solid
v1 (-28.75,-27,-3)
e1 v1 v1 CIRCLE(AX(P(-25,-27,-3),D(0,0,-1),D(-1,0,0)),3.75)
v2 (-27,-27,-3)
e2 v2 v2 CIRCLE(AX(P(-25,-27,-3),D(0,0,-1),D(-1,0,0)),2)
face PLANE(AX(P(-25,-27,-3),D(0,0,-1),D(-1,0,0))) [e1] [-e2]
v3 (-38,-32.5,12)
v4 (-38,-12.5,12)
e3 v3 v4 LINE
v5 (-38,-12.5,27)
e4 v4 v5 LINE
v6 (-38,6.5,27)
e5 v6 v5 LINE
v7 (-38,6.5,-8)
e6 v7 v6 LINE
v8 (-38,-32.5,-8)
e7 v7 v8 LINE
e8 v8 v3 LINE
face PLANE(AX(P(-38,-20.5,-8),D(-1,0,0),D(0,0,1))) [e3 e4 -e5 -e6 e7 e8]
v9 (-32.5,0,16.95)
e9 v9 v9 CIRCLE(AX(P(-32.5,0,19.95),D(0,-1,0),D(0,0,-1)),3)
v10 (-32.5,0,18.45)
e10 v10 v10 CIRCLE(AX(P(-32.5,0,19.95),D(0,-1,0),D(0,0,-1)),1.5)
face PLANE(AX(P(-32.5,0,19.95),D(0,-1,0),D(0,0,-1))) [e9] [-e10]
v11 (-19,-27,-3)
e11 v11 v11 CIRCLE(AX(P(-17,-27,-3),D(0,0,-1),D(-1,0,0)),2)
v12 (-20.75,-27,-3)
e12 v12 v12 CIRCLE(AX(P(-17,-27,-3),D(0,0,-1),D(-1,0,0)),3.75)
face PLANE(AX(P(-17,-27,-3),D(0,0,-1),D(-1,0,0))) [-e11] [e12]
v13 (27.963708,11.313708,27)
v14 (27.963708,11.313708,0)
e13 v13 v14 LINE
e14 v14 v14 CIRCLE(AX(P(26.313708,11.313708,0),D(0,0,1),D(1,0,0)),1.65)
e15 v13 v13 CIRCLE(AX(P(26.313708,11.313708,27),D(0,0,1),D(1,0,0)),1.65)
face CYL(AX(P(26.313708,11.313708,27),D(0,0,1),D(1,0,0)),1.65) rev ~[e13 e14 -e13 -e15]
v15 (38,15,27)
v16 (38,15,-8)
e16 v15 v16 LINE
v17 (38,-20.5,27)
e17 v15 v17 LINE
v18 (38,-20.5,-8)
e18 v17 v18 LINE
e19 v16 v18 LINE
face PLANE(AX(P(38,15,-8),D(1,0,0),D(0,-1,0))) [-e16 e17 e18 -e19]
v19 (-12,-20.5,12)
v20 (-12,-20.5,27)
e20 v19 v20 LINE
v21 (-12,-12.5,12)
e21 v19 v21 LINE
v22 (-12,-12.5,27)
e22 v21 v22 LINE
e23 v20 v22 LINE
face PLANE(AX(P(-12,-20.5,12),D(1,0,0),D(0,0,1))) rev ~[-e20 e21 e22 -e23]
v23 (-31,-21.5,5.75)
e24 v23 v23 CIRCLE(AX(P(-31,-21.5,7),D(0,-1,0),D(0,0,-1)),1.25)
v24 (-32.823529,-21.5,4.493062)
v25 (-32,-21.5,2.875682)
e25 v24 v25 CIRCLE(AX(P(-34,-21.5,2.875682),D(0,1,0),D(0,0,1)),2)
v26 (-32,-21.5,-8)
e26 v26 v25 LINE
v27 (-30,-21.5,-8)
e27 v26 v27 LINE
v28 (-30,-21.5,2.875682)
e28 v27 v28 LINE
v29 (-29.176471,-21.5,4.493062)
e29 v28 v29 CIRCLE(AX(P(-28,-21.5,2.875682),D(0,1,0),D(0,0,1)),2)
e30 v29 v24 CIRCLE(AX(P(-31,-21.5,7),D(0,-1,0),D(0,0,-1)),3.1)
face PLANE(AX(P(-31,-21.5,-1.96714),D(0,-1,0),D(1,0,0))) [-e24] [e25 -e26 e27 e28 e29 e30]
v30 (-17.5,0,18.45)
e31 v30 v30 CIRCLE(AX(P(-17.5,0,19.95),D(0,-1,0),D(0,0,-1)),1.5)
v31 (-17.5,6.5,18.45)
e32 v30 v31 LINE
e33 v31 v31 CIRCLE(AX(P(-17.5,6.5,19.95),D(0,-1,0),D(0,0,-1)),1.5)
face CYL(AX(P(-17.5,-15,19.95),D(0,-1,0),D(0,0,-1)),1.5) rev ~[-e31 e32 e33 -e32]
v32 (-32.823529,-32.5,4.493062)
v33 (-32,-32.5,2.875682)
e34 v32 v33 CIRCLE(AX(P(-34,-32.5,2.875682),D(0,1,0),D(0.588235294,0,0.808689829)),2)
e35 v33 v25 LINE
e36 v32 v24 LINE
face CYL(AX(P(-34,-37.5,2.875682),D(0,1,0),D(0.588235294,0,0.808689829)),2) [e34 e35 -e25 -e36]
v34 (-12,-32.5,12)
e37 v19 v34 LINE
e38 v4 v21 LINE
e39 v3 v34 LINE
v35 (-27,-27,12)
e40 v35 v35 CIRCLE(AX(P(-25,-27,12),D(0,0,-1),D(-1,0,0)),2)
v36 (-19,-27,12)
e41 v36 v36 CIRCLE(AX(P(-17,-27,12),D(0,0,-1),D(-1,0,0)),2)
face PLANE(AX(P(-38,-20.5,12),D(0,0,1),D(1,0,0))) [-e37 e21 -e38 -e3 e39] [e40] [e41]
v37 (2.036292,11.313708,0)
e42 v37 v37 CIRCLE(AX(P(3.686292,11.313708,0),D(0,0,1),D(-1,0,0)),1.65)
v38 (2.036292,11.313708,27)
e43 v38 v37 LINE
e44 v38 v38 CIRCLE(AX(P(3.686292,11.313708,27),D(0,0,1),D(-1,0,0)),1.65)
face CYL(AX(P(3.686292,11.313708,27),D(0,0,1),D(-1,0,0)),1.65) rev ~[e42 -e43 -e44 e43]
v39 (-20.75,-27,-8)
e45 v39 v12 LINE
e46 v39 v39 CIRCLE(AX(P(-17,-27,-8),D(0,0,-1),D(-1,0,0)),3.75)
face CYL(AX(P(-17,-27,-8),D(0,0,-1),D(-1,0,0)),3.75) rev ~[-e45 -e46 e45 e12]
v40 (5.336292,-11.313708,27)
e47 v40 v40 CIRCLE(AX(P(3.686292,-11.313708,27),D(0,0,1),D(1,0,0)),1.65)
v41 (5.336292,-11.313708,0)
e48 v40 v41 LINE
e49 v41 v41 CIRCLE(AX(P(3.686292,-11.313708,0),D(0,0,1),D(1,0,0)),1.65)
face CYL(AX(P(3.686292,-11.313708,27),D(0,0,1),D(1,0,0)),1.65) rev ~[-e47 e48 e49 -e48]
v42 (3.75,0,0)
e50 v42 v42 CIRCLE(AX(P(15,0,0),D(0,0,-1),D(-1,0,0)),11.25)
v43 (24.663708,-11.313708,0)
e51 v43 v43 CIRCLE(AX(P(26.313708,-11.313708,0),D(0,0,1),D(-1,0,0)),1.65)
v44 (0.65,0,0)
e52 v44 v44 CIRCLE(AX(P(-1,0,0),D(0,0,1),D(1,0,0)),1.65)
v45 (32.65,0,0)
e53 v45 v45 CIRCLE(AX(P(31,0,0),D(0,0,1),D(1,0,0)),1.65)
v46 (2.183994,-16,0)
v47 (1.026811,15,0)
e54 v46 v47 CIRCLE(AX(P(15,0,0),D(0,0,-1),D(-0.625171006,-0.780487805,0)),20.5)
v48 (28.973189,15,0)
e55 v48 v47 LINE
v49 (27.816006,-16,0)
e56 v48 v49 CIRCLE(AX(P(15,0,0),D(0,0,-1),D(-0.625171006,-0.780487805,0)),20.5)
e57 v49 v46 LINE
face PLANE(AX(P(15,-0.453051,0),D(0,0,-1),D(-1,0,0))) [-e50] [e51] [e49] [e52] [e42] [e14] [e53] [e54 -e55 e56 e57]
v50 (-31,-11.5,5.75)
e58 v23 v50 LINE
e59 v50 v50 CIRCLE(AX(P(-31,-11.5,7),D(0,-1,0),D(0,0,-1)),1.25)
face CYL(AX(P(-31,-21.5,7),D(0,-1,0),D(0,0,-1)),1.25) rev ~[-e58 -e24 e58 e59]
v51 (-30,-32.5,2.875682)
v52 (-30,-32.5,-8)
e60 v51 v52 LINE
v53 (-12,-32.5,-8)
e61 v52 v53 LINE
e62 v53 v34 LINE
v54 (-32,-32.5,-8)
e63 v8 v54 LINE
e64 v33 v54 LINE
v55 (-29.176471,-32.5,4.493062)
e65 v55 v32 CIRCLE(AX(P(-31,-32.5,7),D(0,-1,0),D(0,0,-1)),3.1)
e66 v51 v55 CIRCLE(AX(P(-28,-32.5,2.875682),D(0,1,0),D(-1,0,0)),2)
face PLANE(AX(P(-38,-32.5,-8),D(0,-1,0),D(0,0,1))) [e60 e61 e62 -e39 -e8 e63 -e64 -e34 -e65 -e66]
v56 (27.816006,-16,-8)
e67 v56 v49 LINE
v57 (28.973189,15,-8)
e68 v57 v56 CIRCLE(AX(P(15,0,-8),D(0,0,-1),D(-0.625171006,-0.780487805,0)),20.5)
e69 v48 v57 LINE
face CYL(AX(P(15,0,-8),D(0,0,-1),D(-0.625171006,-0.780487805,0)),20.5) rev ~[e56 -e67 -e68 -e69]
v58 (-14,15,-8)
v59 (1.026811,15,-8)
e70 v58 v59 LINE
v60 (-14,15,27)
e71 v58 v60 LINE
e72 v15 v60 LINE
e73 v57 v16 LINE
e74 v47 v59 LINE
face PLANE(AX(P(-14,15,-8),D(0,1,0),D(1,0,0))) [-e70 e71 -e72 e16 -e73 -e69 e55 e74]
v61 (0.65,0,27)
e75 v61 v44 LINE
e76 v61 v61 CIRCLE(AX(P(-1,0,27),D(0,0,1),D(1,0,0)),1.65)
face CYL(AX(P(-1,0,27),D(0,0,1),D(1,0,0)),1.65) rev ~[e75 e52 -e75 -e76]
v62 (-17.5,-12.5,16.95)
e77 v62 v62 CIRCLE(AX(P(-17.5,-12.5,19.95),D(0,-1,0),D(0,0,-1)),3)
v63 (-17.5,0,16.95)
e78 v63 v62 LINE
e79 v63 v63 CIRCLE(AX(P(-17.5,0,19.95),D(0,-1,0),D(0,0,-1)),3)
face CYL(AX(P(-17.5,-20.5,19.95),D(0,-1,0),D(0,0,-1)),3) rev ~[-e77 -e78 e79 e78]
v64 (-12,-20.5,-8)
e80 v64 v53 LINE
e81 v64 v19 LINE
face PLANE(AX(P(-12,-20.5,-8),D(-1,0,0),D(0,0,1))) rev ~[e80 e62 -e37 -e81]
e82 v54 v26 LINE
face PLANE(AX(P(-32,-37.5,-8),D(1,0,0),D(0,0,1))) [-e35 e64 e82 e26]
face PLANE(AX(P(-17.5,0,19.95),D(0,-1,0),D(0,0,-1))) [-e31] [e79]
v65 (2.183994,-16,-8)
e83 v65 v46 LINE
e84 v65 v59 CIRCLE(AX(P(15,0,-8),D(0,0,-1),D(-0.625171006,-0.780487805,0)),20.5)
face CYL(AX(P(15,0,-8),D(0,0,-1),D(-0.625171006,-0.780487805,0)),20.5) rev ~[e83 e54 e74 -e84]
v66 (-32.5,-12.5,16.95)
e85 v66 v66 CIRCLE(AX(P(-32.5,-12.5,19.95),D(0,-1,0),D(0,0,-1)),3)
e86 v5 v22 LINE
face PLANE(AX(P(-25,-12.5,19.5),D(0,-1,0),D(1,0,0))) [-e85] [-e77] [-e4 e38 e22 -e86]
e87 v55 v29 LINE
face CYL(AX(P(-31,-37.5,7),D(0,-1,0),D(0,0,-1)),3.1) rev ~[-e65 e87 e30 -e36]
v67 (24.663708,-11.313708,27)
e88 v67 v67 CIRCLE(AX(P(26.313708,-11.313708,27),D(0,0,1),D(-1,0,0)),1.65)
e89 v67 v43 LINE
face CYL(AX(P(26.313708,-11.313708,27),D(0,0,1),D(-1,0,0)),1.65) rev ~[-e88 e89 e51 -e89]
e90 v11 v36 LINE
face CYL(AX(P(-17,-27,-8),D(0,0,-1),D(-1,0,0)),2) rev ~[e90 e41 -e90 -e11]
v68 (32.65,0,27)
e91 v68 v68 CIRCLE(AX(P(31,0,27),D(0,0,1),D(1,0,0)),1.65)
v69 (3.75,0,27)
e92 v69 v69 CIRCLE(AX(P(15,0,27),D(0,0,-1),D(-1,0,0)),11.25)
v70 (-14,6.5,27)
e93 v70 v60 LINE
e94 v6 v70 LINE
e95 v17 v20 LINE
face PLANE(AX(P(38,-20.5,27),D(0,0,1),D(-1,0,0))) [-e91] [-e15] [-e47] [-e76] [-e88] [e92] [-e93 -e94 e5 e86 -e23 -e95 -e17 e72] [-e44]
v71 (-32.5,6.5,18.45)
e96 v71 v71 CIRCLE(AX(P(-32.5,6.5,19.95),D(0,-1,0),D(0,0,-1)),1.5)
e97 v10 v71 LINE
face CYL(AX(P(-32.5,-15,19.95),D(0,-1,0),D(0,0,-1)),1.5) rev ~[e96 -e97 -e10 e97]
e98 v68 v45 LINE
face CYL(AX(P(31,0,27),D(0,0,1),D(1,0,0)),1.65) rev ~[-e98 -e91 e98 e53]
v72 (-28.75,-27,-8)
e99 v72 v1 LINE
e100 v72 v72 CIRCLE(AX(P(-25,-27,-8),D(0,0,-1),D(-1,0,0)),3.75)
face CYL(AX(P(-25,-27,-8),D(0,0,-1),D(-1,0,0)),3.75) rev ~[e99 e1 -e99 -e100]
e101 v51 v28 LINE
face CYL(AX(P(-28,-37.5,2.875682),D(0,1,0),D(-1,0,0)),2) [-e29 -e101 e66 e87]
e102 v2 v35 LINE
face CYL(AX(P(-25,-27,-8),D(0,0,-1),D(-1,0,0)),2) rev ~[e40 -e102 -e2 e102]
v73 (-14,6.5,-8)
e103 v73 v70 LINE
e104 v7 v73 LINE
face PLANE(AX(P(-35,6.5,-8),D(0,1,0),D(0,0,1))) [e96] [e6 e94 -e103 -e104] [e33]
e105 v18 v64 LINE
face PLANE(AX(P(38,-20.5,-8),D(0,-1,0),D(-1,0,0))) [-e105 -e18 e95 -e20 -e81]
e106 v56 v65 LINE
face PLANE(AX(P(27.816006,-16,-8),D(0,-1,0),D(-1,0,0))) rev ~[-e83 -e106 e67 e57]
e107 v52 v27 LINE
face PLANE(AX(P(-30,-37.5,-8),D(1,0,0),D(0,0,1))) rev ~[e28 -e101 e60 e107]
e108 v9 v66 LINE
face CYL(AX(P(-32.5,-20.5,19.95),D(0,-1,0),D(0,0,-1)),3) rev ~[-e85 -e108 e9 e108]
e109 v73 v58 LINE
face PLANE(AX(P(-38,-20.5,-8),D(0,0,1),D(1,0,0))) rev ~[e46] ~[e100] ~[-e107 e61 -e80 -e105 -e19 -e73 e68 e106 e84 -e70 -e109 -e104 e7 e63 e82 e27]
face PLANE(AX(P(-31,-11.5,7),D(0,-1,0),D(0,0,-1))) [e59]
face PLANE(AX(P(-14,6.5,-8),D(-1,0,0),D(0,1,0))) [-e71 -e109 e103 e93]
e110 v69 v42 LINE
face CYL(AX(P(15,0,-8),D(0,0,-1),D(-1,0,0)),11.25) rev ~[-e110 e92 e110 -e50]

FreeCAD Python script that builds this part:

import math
import FreeCAD as App
import Part
import Sketcher

V = App.Vector
Q = App.Units.Quantity


def edges_at(feature, points):
    """Names of the edges that pass closest to the given points."""
    edges = feature.Shape.Edges
    near = lambda p: min(range(len(edges)), key=lambda i: edges[i].distToShape(Part.Vertex(*p))[0])
    return sorted({f"Edge{near(p) + 1}" for p in points})

doc = App.newDocument("Part")
body = doc.addObject("PartDesign::Body", "Body")

# Sketch on XY plane
sketch1 = doc.addObject("Sketcher::SketchObject", "Sketch")
body.addObject(sketch1)
sketch1.AttachmentSupport = (doc.XY_Plane, [""])
sketch1.MapMode = "FlatFace"
sketch1.addGeometry([
    Part.LineSegment(V(-35, 15, 0), V(-35, -15, 0)),
    Part.LineSegment(V(-35, -15, 0), V(35, -15, 0)),
    Part.LineSegment(V(35, -15, 0), V(35, 15, 0)),
    Part.LineSegment(V(35, 15, 0), V(-35, 15, 0)),
], False)
sketch1.addConstraint([
    Sketcher.Constraint("Coincident", 0, 2, 1, 1),
    Sketcher.Constraint("Coincident", 1, 2, 2, 1),
    Sketcher.Constraint("Coincident", 2, 2, 3, 1),
    Sketcher.Constraint("Coincident", 3, 2, 0, 1),
    Sketcher.Constraint("Vertical", 0),
    Sketcher.Constraint("Horizontal", 1),
    Sketcher.Constraint("Vertical", 2),
    Sketcher.Constraint("Horizontal", 3),
    Sketcher.Constraint("Symmetric", 0, 2, 2, 2, -1, 1),
    Sketcher.Constraint("DistanceX", 1, 1, 1, 2, Q("70 mm")),
    Sketcher.Constraint("DistanceY", 0, 2, 0, 1, Q("30 mm")),
])
pad1 = doc.addObject("PartDesign::Pad", "Pad")
body.addObject(pad1)
pad1.Profile = sketch1
pad1.Length = 27

# Sketch on XY plane
sketch2 = doc.addObject("Sketcher::SketchObject", "Sketch001")
body.addObject(sketch2)
sketch2.AttachmentSupport = (doc.XY_Plane, [""])
sketch2.MapMode = "FlatFace"
sketch2.AttachmentOffset = App.Placement(V(0, 0, 27), App.Rotation())
sketch2.addGeometry([
    Part.LineSegment(V(28, -15, 0), V(35, -15, 0)),  # 0
    Part.LineSegment(V(35, -15, 0), V(35, 0, 0)),  # 1
    Part.ArcOfCircle(Part.Circle(V(15, 0, 0), V(0, 0, 1), 20), math.radians(-49), math.radians(0)),  # 2
    Part.ArcOfCircle(Part.Circle(V(15, 0, 0), V(0, 0, 1), 20), math.radians(0), math.radians(49)),  # 3
    Part.LineSegment(V(35, 0, 0), V(35, 15, 0)),  # 4
    Part.LineSegment(V(35, 15, 0), V(28, 15, 0)),  # 5
], False)
sketch2.addConstraint([
    Sketcher.Constraint("Coincident", 0, 2, 1, 1),
    Sketcher.Constraint("Tangent", 1, 2, 2, 2),
    Sketcher.Constraint("Coincident", 2, 1, 0, 1),
    Sketcher.Constraint("Tangent", 3, 1, 4, 1),
    Sketcher.Constraint("Coincident", 4, 2, 5, 1),
    Sketcher.Constraint("Coincident", 5, 2, 3, 2),
    Sketcher.Constraint("Horizontal", 0),
    Sketcher.Constraint("Vertical", 1),
    Sketcher.Constraint("Vertical", 4),
    Sketcher.Constraint("Horizontal", 5),
    Sketcher.Constraint("Coincident", 3, 3, 2, 3),
    Sketcher.Constraint("Equal", 2, 3),
    Sketcher.Constraint("Symmetric", 2, 1, 5, 2, -1),
    Sketcher.Constraint("Radius", 2, Q("20 mm")),
    Sketcher.Constraint("DistanceY", 1, 1, 1, 2, Q("15 mm")),
    Sketcher.Constraint("DistanceX", -1, 1, 2, 3, Q("15 mm")),
])
pocket1 = doc.addObject("PartDesign::Pocket", "Pocket")
body.addObject(pocket1)
pocket1.Profile = sketch2
pocket1.Type = "ThroughAll"

# Sketch on XY plane
sketch3 = doc.addObject("Sketcher::SketchObject", "Sketch002")
body.addObject(sketch3)
sketch3.AttachmentSupport = (doc.XY_Plane, [""])
sketch3.MapMode = "FlatFace"
sketch3.AttachmentOffset = App.Placement(V(0, 0, 27), App.Rotation())
sketch3.addGeometry([
    Part.Circle(V(31, 0, 0), V(0, 0, 1), 1.6),  # 0
    Part.Circle(V(26.3, 11.3, 0), V(0, 0, 1), 1.6),  # 1
    Part.Circle(V(26.3, -11.3, 0), V(0, 0, 1), 1.6),  # 2
    Part.Circle(V(3.7, 11.3, 0), V(0, 0, 1), 1.6),  # 3
    Part.Circle(V(3.7, -11.3, 0), V(0, 0, 1), 1.6),  # 4
    Part.Circle(V(-1, 0, 0), V(0, 0, 1), 1.6),  # 5
], False)
sketch3.addConstraint([
    Sketcher.Constraint("Equal", 0, 1),
    Sketcher.Constraint("Equal", 1, 2),
    Sketcher.Constraint("Equal", 2, 3),
    Sketcher.Constraint("Equal", 3, 4),
    Sketcher.Constraint("Equal", 4, 5),
    Sketcher.Constraint("Symmetric", 1, 3, 2, 3, -1),
    Sketcher.Constraint("Symmetric", 3, 3, 4, 3, -1),
    Sketcher.Constraint("PointOnObject", 0, 3, -1),
    Sketcher.Constraint("PointOnObject", 5, 3, -1),
    Sketcher.Constraint("Horizontal", 1, 3, 3, 3),
    Sketcher.Constraint("Diameter", 0, Q("3.3 mm")),
    Sketcher.Constraint("DistanceX", -1, 1, 0, 3, Q("31 mm")),
    Sketcher.Constraint("DistanceX", 5, 3, -1, 1, Q("1 mm")),
    Sketcher.Constraint("DistanceX", -1, 1, 1, 3, Q("26.313708 mm")),
    Sketcher.Constraint("DistanceY", -1, 1, 1, 3, Q("11.313708 mm")),
    Sketcher.Constraint("DistanceX", -1, 1, 3, 3, Q("3.686292 mm")),
])
pocket2 = doc.addObject("PartDesign::Pocket", "Pocket001")
body.addObject(pocket2)
pocket2.Profile = sketch3
pocket2.Type = "ThroughAll"

# Sketch on XY plane
sketch4 = doc.addObject("Sketcher::SketchObject", "Sketch003")
body.addObject(sketch4)
sketch4.AttachmentSupport = (doc.XY_Plane, [""])
sketch4.MapMode = "FlatFace"
sketch4.AttachmentOffset = App.Placement(V(0, 0, 27), App.Rotation())
sketch4.addGeometry([
    Part.LineSegment(V(-35, 15, 0), V(-35, 6, 0)),
    Part.LineSegment(V(-35, 6, 0), V(-14, 6, 0)),
    Part.LineSegment(V(-14, 6, 0), V(-14, 15, 0)),
    Part.LineSegment(V(-14, 15, 0), V(-35, 15, 0)),
], False)
sketch4.addConstraint([
    Sketcher.Constraint("Coincident", 0, 2, 1, 1),
    Sketcher.Constraint("Coincident", 1, 2, 2, 1),
    Sketcher.Constraint("Coincident", 2, 2, 3, 1),
    Sketcher.Constraint("Coincident", 3, 2, 0, 1),
    Sketcher.Constraint("Vertical", 0),
    Sketcher.Constraint("Horizontal", 1),
    Sketcher.Constraint("Vertical", 2),
    Sketcher.Constraint("Horizontal", 3),
    Sketcher.Constraint("DistanceX", 1, 1, 1, 2, Q("21 mm")),
    Sketcher.Constraint("DistanceY", 0, 2, 0, 1, Q("8.5 mm")),
    Sketcher.Constraint("DistanceX", 0, 2, -1, 1, Q("35 mm")),
    Sketcher.Constraint("DistanceY", -1, 1, 2, 2, Q("15 mm")),
])
pocket3 = doc.addObject("PartDesign::Pocket", "Pocket002")
body.addObject(pocket3)
pocket3.Profile = sketch4
pocket3.Type = "ThroughAll"

# Sketch on XY plane
sketch5 = doc.addObject("Sketcher::SketchObject", "Sketch004")
body.addObject(sketch5)
sketch5.AttachmentSupport = (doc.XY_Plane, [""])
sketch5.MapMode = "FlatFace"
sketch5.addGeometry(Part.Circle(V(15, 0, 0), V(0, 0, 1), 11), False)
sketch5.addConstraint([
    Sketcher.Constraint("PointOnObject", 0, 3, -1),
    Sketcher.Constraint("Diameter", 0, Q("22.5 mm")),
    Sketcher.Constraint("DistanceX", -1, 1, 0, 3, Q("15 mm")),
])
pocket4 = doc.addObject("PartDesign::Pocket", "Pocket003")
body.addObject(pocket4)
pocket4.Profile = sketch5
pocket4.Type = "ThroughAll"
pocket4.Reversed = True

# Sketch on XY plane
sketch6 = doc.addObject("Sketcher::SketchObject", "Sketch005")
body.addObject(sketch6)
sketch6.AttachmentSupport = (doc.XY_Plane, [""])
sketch6.MapMode = "FlatFace"
sketch6.addGeometry([
    Part.LineSegment(V(-14, 6, 0), V(-14, -15, 0)),
    Part.LineSegment(V(-14, -15, 0), V(-35, -15, 0)),
    Part.LineSegment(V(-35, -15, 0), V(-35, 6, 0)),
    Part.LineSegment(V(-35, 6, 0), V(-14, 6, 0)),
], False)
sketch6.addConstraint([
    Sketcher.Constraint("Coincident", 0, 2, 1, 1),
    Sketcher.Constraint("Coincident", 1, 2, 2, 1),
    Sketcher.Constraint("Coincident", 2, 2, 3, 1),
    Sketcher.Constraint("Coincident", 3, 2, 0, 1),
    Sketcher.Constraint("Vertical", 0),
    Sketcher.Constraint("Horizontal", 1),
    Sketcher.Constraint("Vertical", 2),
    Sketcher.Constraint("Horizontal", 3),
    Sketcher.Constraint("Equal", 3, 0),
    Sketcher.Constraint("DistanceX", 1, 2, 1, 1, Q("21.5 mm")),
    Sketcher.Constraint("DistanceY", 0, 2, -1, 1, Q("15 mm")),
    Sketcher.Constraint("DistanceX", 1, 2, -1, 1, Q("35 mm")),
])
pad2 = doc.addObject("PartDesign::Pad", "Pad001")
body.addObject(pad2)
pad2.Profile = sketch6
pad2.Length = 8
pad2.Reversed = True

# Sketch on XZ plane
sketch7 = doc.addObject("Sketcher::SketchObject", "Sketch006")
body.addObject(sketch7)
sketch7.AttachmentSupport = (doc.XZ_Plane, [""])
sketch7.MapMode = "FlatFace"
sketch7.AttachmentOffset = App.Placement(V(0, 0, 15), App.Rotation())
sketch7.addGeometry([
    Part.Circle(V(-17.5, 19.9, 0), V(0, 0, 1), 1.5),
    Part.Circle(V(-32.5, 19.9, 0), V(0, 0, 1), 1.5),
], False)
sketch7.addConstraint([
    Sketcher.Constraint("Equal", 0, 1),
    Sketcher.Constraint("Horizontal", 0, 3, 1, 3),
    Sketcher.Constraint("Diameter", 0, Q("3 mm")),
    Sketcher.Constraint("DistanceX", 1, 3, 0, 3, Q("15 mm")),
    Sketcher.Constraint("DistanceX", 0, 3, -1, 1, Q("17.5 mm")),
    Sketcher.Constraint("DistanceY", -1, 1, 0, 3, Q("19.95 mm")),
])
pocket5 = doc.addObject("PartDesign::Pocket", "Pocket004")
body.addObject(pocket5)
pocket5.Profile = sketch7
pocket5.Type = "ThroughAll"

# Sketch on YZ plane
sketch8 = doc.addObject("Sketcher::SketchObject", "Sketch007")
body.addObject(sketch8)
sketch8.AttachmentSupport = (doc.YZ_Plane, [""])
sketch8.MapMode = "FlatFace"
sketch8.AttachmentOffset = App.Placement(V(0, 0, -35), App.Rotation())
sketch8.addGeometry([
    Part.LineSegment(V(6, -8, 0), V(-15, -8, 0)),
    Part.LineSegment(V(-15, -8, 0), V(-15, 27, 0)),
    Part.LineSegment(V(-15, 27, 0), V(6, 27, 0)),
    Part.LineSegment(V(6, 27, 0), V(6, -8, 0)),
], False)
sketch8.addConstraint([
    Sketcher.Constraint("Coincident", 0, 2, 1, 1),
    Sketcher.Constraint("Coincident", 1, 2, 2, 1),
    Sketcher.Constraint("Coincident", 2, 2, 3, 1),
    Sketcher.Constraint("Coincident", 3, 2, 0, 1),
    Sketcher.Constraint("Horizontal", 0),
    Sketcher.Constraint("Vertical", 1),
    Sketcher.Constraint("Horizontal", 2),
    Sketcher.Constraint("Vertical", 3),
    Sketcher.Constraint("DistanceY", 1, 1, 1, 2, Q("35 mm")),
    Sketcher.Constraint("DistanceX", 0, 2, 0, 1, Q("21.5 mm")),
    Sketcher.Constraint("DistanceX", 0, 2, -1, 1, Q("15 mm")),
    Sketcher.Constraint("DistanceY", 0, 2, -1, 1, Q("8 mm")),
])
pad3 = doc.addObject("PartDesign::Pad", "Pad002")
body.addObject(pad3)
pad3.Profile = sketch8
pad3.Length = 3
pad3.Reversed = True

# Sketch on XZ plane
sketch9 = doc.addObject("Sketcher::SketchObject", "Sketch008")
body.addObject(sketch9)
sketch9.AttachmentSupport = (doc.XZ_Plane, [""])
sketch9.MapMode = "FlatFace"
sketch9.AttachmentOffset = App.Placement(V(0, 0, 15), App.Rotation())
sketch9.addGeometry([
    Part.Circle(V(-32.5, 19.9, 0), V(0, 0, 1), 3),
    Part.Circle(V(-17.5, 19.9, 0), V(0, 0, 1), 3),
], False)
sketch9.addConstraint([
    Sketcher.Constraint("Equal", 0, 1),
    Sketcher.Constraint("Horizontal", 0, 3, 1, 3),
    Sketcher.Constraint("Diameter", 0, Q("6 mm")),
    Sketcher.Constraint("DistanceX", 0, 3, 1, 3, Q("15 mm")),
    Sketcher.Constraint("DistanceX", 0, 3, -1, 1, Q("32.5 mm")),
    Sketcher.Constraint("DistanceY", -1, 1, 0, 3, Q("19.95 mm")),
])
pocket6 = doc.addObject("PartDesign::Pocket", "Pocket005")
body.addObject(pocket6)
pocket6.Profile = sketch9
pocket6.Length = 15

# Sketch on XY plane
sketch10 = doc.addObject("Sketcher::SketchObject", "Sketch009")
body.addObject(sketch10)
sketch10.AttachmentSupport = (doc.XY_Plane, [""])
sketch10.MapMode = "FlatFace"
sketch10.AttachmentOffset = App.Placement(V(0, 0, 27), App.Rotation())
sketch10.addGeometry([
    Part.LineSegment(V(28.2, -15, 0), V(35, -15, 0)),  # 0
    Part.LineSegment(V(35, -15, 0), V(35, 15, 0)),  # 1
    Part.LineSegment(V(35, 15, 0), V(28.2, 15, 0)),  # 2
    Part.LineSegment(V(28.2, 15, 0), V(28.2, -15, 0)),  # 3
    Part.Circle(V(31, 0, 0), V(0, 0, 1), 1.6),  # 4
], False)
sketch10.addConstraint([
    Sketcher.Constraint("Coincident", 0, 2, 1, 1),
    Sketcher.Constraint("Coincident", 1, 2, 2, 1),
    Sketcher.Constraint("Coincident", 2, 2, 3, 1),
    Sketcher.Constraint("Coincident", 3, 2, 0, 1),
    Sketcher.Constraint("Horizontal", 0),
    Sketcher.Constraint("Vertical", 1),
    Sketcher.Constraint("Horizontal", 2),
    Sketcher.Constraint("Vertical", 3),
    Sketcher.Constraint("PointOnObject", 4, 3, -1),
    Sketcher.Constraint("Diameter", 4, Q("3.3 mm")),
    Sketcher.Constraint("DistanceY", 1, 1, 1, 2, Q("30 mm")),
    Sketcher.Constraint("DistanceX", -1, 1, 4, 3, Q("31 mm")),
    Sketcher.Constraint("DistanceX", -1, 1, 0, 2, Q("35 mm")),
    Sketcher.Constraint("DistanceY", 0, 2, -1, 1, Q("15 mm")),
    Sketcher.Constraint("DistanceX", 0, 1, 0, 2, Q("6.771243 mm")),
])
pad4 = doc.addObject("PartDesign::Pad", "Pad003")
body.addObject(pad4)
pad4.Profile = sketch10
pad4.Length = 27
pad4.Reversed = True

# Sketch on YZ plane
sketch11 = doc.addObject("Sketcher::SketchObject", "Sketch010")
body.addObject(sketch11)
sketch11.AttachmentSupport = (doc.YZ_Plane, [""])
sketch11.MapMode = "FlatFace"
sketch11.AttachmentOffset = App.Placement(V(0, 0, 35), App.Rotation())
sketch11.addGeometry([
    Part.LineSegment(V(15, 27, 0), V(-15, 27, 0)),
    Part.LineSegment(V(-15, 27, 0), V(-15, 0, 0)),
    Part.LineSegment(V(-15, 0, 0), V(15, 0, 0)),
    Part.LineSegment(V(15, 0, 0), V(15, 27, 0)),
], False)
sketch11.addConstraint([
    Sketcher.Constraint("Coincident", 0, 2, 1, 1),
    Sketcher.Constraint("Coincident", 1, 2, 2, 1),
    Sketcher.Constraint("Coincident", 2, 2, 3, 1),
    Sketcher.Constraint("Coincident", 3, 2, 0, 1),
    Sketcher.Constraint("Horizontal", 0),
    Sketcher.Constraint("Vertical", 1),
    Sketcher.Constraint("Horizontal", 2),
    Sketcher.Constraint("Vertical", 3),
    Sketcher.Constraint("Symmetric", 1, 2, 2, 2, -1, 1),
    Sketcher.Constraint("DistanceX", 0, 2, 0, 1, Q("30 mm")),
    Sketcher.Constraint("DistanceY", 1, 2, 1, 1, Q("27 mm")),
])
pad5 = doc.addObject("PartDesign::Pad", "Pad004")
body.addObject(pad5)
pad5.Profile = sketch11
pad5.Length = 3

# Sketch on XZ plane
sketch12 = doc.addObject("Sketcher::SketchObject", "Sketch011")
body.addObject(sketch12)
sketch12.AttachmentSupport = (doc.XZ_Plane, [""])
sketch12.MapMode = "FlatFace"
sketch12.AttachmentOffset = App.Placement(V(0, 0, 20.5), App.Rotation())
sketch12.addGeometry([
    Part.LineSegment(V(-13.5, 0, 0), V(38, 0, 0)),  # 0
    Part.LineSegment(V(38, 0, 0), V(38, 27, 0)),  # 1
    Part.LineSegment(V(38, 27, 0), V(-38, 27, 0)),  # 2
    Part.LineSegment(V(-38, 27, 0), V(-38, -8, 0)),  # 3
    Part.LineSegment(V(-38, -8, 0), V(-13.5, -8, 0)),  # 4
    Part.LineSegment(V(-13.5, -8, 0), V(-13.5, 0, 0)),  # 5
    Part.Circle(V(-32.5, 19.9, 0), V(0, 0, 1), 3),  # 6
    Part.Circle(V(-17.5, 19.9, 0), V(0, 0, 1), 3),  # 7
], False)
sketch12.addConstraint([
    Sketcher.Constraint("Coincident", 0, 2, 1, 1),
    Sketcher.Constraint("Coincident", 1, 2, 2, 1),
    Sketcher.Constraint("Coincident", 2, 2, 3, 1),
    Sketcher.Constraint("Coincident", 3, 2, 4, 1),
    Sketcher.Constraint("Coincident", 4, 2, 5, 1),
    Sketcher.Constraint("Coincident", 5, 2, 0, 1),
    Sketcher.Constraint("Horizontal", 0),
    Sketcher.Constraint("Vertical", 1),
    Sketcher.Constraint("Horizontal", 2),
    Sketcher.Constraint("Vertical", 3),
    Sketcher.Constraint("Horizontal", 4),
    Sketcher.Constraint("Vertical", 5),
    Sketcher.Constraint("Equal", 6, 7),
    Sketcher.Constraint("PointOnObject", 0, 2, -1),
    Sketcher.Constraint("Horizontal", 6, 3, 7, 3),
    Sketcher.Constraint("Diameter", 6, Q("6 mm")),
    Sketcher.Constraint("DistanceX", 2, 2, 2, 1, Q("76 mm")),
    Sketcher.Constraint("DistanceY", 1, 1, 1, 2, Q("27 mm")),
    Sketcher.Constraint("DistanceY", 3, 2, 3, 1, Q("35 mm")),
    Sketcher.Constraint("DistanceX", 0, 1, 0, 2, Q("51.5 mm")),
    Sketcher.Constraint("DistanceX", -1, 1, 0, 2, Q("38 mm")),
    Sketcher.Constraint("DistanceX", 6, 3, 7, 3, Q("15 mm")),
    Sketcher.Constraint("DistanceX", 7, 3, 4, 2, Q("4 mm")),
    Sketcher.Constraint("DistanceY", -1, 1, 6, 3, Q("19.95 mm")),
])
pad6 = doc.addObject("PartDesign::Pad", "Pad005")
body.addObject(pad6)
pad6.Profile = sketch12
pad6.Length = 5.5
pad6.Reversed = True

# Sketch on XZ plane
sketch13 = doc.addObject("Sketcher::SketchObject", "Sketch012")
body.addObject(sketch13)
sketch13.AttachmentSupport = (doc.XZ_Plane, [""])
sketch13.MapMode = "FlatFace"
sketch13.AttachmentOffset = App.Placement(V(0, 0, 20.5), App.Rotation())
sketch13.addGeometry([
    Part.LineSegment(V(-38, 27, 0), V(-38, 12, 0)),
    Part.LineSegment(V(-38, 12, 0), V(-12, 12, 0)),
    Part.LineSegment(V(-12, 12, 0), V(-12, 27, 0)),
    Part.LineSegment(V(-12, 27, 0), V(-38, 27, 0)),
], False)
sketch13.addConstraint([
    Sketcher.Constraint("Coincident", 0, 2, 1, 1),
    Sketcher.Constraint("Coincident", 1, 2, 2, 1),
    Sketcher.Constraint("Coincident", 2, 2, 3, 1),
    Sketcher.Constraint("Coincident", 3, 2, 0, 1),
    Sketcher.Constraint("Vertical", 0),
    Sketcher.Constraint("Horizontal", 1),
    Sketcher.Constraint("Vertical", 2),
    Sketcher.Constraint("Horizontal", 3),
    Sketcher.Constraint("DistanceX", 1, 1, 1, 2, Q("26 mm")),
    Sketcher.Constraint("DistanceY", 0, 2, 0, 1, Q("15 mm")),
    Sketcher.Constraint("DistanceX", 0, 2, -1, 1, Q("38 mm")),
    Sketcher.Constraint("DistanceY", -1, 1, 0, 2, Q("12 mm")),
])
pocket7 = doc.addObject("PartDesign::Pocket", "Pocket006")
body.addObject(pocket7)
pocket7.Profile = sketch13
pocket7.Length = 8

# Sketch on XY plane
sketch14 = doc.addObject("Sketcher::SketchObject", "Sketch013")
body.addObject(sketch14)
sketch14.AttachmentSupport = (doc.XY_Plane, [""])
sketch14.MapMode = "FlatFace"
sketch14.AttachmentOffset = App.Placement(V(0, 0, -8), App.Rotation())
sketch14.addGeometry([
    Part.LineSegment(V(-14, 15, 0), V(38, 15, 0)),  # 0
    Part.LineSegment(V(38, 15, 0), V(38, -20.5, 0)),  # 1
    Part.LineSegment(V(38, -20.5, 0), V(-13.5, -20.5, 0)),  # 2
    Part.LineSegment(V(-13.5, -20.5, 0), V(-13.5, 6.5, 0)),  # 3
    Part.LineSegment(V(-13.5, 6.5, 0), V(-14, 6.5, 0)),  # 4
    Part.LineSegment(V(-14, 6.5, 0), V(-14, 15, 0)),  # 5
    Part.Circle(V(15, 0, 0), V(0, 0, 1), 11.2),  # 6
], False)
sketch14.addConstraint([
    Sketcher.Constraint("Coincident", 0, 2, 1, 1),
    Sketcher.Constraint("Coincident", 1, 2, 2, 1),
    Sketcher.Constraint("Coincident", 2, 2, 3, 1),
    Sketcher.Constraint("Coincident", 3, 2, 4, 1),
    Sketcher.Constraint("Coincident", 4, 2, 5, 1),
    Sketcher.Constraint("Coincident", 5, 2, 0, 1),
    Sketcher.Constraint("Horizontal", 0),
    Sketcher.Constraint("Vertical", 1),
    Sketcher.Constraint("Horizontal", 2),
    Sketcher.Constraint("Vertical", 3),
    Sketcher.Constraint("Horizontal", 4),
    Sketcher.Constraint("Vertical", 5),
    Sketcher.Constraint("PointOnObject", 6, 3, -1),
    Sketcher.Constraint("Diameter", 6, Q("22.5 mm")),
    Sketcher.Constraint("DistanceX", 0, 1, 0, 2, Q("52 mm")),
    Sketcher.Constraint("DistanceY", 3, 1, 3, 2, Q("27 mm")),
    Sketcher.Constraint("DistanceX", 2, 2, 2, 1, Q("51.5 mm")),
    Sketcher.Constraint("DistanceY", 1, 2, 1, 1, Q("35.5 mm")),
    Sketcher.Constraint("DistanceX", -1, 1, 6, 3, Q("15 mm")),
    Sketcher.Constraint("DistanceX", -1, 1, 0, 2, Q("38 mm")),
    Sketcher.Constraint("DistanceY", -1, 1, 0, 2, Q("15 mm")),
])
pad7 = doc.addObject("PartDesign::Pad", "Pad006")
body.addObject(pad7)
pad7.Profile = sketch14
pad7.Length = 8

# Sketch on XY plane
sketch15 = doc.addObject("Sketcher::SketchObject", "Sketch014")
body.addObject(sketch15)
sketch15.AttachmentSupport = (doc.XY_Plane, [""])
sketch15.MapMode = "FlatFace"
sketch15.AttachmentOffset = App.Placement(V(0, 0, -8), App.Rotation())
sketch15.addGeometry([
    Part.LineSegment(V(28, -16, 0), V(2, -16, 0)),
    Part.ArcOfCircle(Part.Circle(V(15, 0, 0), V(0, 0, 1), 20), math.radians(-51), math.radians(231)),
], False)
sketch15.addConstraint([
    Sketcher.Constraint("Coincident", 0, 1, 1, 1),
    Sketcher.Constraint("Coincident", 1, 2, 0, 2),
    Sketcher.Constraint("Horizontal", 0),
    Sketcher.Constraint("PointOnObject", 1, 3, -1),
    Sketcher.Constraint("Radius", 1, Q("20.5 mm")),
    Sketcher.Constraint("DistanceX", -1, 1, 1, 3, Q("15 mm")),
    Sketcher.Constraint("DistanceY", 0, 1, -1, 1, Q("16 mm")),
])
pocket8 = doc.addObject("PartDesign::Pocket", "Pocket007")
body.addObject(pocket8)
pocket8.Profile = sketch15
pocket8.Length = 8
pocket8.Reversed = True

# Sketch on XZ plane
sketch16 = doc.addObject("Sketcher::SketchObject", "Sketch015")
body.addObject(sketch16)
sketch16.AttachmentSupport = (doc.XZ_Plane, [""])
sketch16.MapMode = "FlatFace"
sketch16.AttachmentOffset = App.Placement(V(0, 0, 20.5), App.Rotation())
sketch16.addGeometry([
    Part.LineSegment(V(-38, 12, 0), V(-38, -8, 0)),
    Part.LineSegment(V(-38, -8, 0), V(-12, -8, 0)),
    Part.LineSegment(V(-12, -8, 0), V(-12, 12, 0)),
    Part.LineSegment(V(-12, 12, 0), V(-38, 12, 0)),
], False)
sketch16.addConstraint([
    Sketcher.Constraint("Coincident", 0, 2, 1, 1),
    Sketcher.Constraint("Coincident", 1, 2, 2, 1),
    Sketcher.Constraint("Coincident", 2, 2, 3, 1),
    Sketcher.Constraint("Coincident", 3, 2, 0, 1),
    Sketcher.Constraint("Vertical", 0),
    Sketcher.Constraint("Horizontal", 1),
    Sketcher.Constraint("Vertical", 2),
    Sketcher.Constraint("Horizontal", 3),
    Sketcher.Constraint("DistanceX", 1, 1, 1, 2, Q("26 mm")),
    Sketcher.Constraint("DistanceY", 0, 2, 0, 1, Q("20 mm")),
    Sketcher.Constraint("DistanceX", 0, 2, -1, 1, Q("38 mm")),
    Sketcher.Constraint("DistanceY", 0, 2, -1, 1, Q("8 mm")),
])
pad8 = doc.addObject("PartDesign::Pad", "Pad007")
body.addObject(pad8)
pad8.Profile = sketch16
pad8.Length = 17

# Sketch on XY plane
sketch17 = doc.addObject("Sketcher::SketchObject", "Sketch016")
body.addObject(sketch17)
sketch17.AttachmentSupport = (doc.XY_Plane, [""])
sketch17.MapMode = "FlatFace"
sketch17.AttachmentOffset = App.Placement(V(0, 0, -8), App.Rotation())
sketch17.addGeometry([
    Part.Circle(V(-17, -27, 0), V(0, 0, 1), 2),
    Part.Circle(V(-25, -27, 0), V(0, 0, 1), 2),
], False)
sketch17.addConstraint([
    Sketcher.Constraint("Equal", 0, 1),
    Sketcher.Constraint("Horizontal", 0, 3, 1, 3),
    Sketcher.Constraint("Diameter", 0, Q("4 mm")),
    Sketcher.Constraint("DistanceX", 0, 3, -1, 1, Q("17 mm")),
    Sketcher.Constraint("DistanceY", 0, 3, -1, 1, Q("27 mm")),
    Sketcher.Constraint("DistanceX", 1, 3, -1, 1, Q("25 mm")),
])
pocket9 = doc.addObject("PartDesign::Pocket", "Pocket008")
body.addObject(pocket9)
pocket9.Profile = sketch17
pocket9.Type = "ThroughAll"
pocket9.Reversed = True

# Sketch on XY plane
sketch18 = doc.addObject("Sketcher::SketchObject", "Sketch017")
body.addObject(sketch18)
sketch18.AttachmentSupport = (doc.XY_Plane, [""])
sketch18.MapMode = "FlatFace"
sketch18.AttachmentOffset = App.Placement(V(0, 0, -8), App.Rotation())
sketch18.addGeometry([
    Part.Circle(V(-17, -27, 0), V(0, 0, 1), 3.8),
    Part.Circle(V(-25, -27, 0), V(0, 0, 1), 3.8),
], False)
sketch18.addConstraint([
    Sketcher.Constraint("Equal", 0, 1),
    Sketcher.Constraint("Horizontal", 0, 3, 1, 3),
    Sketcher.Constraint("Diameter", 0, Q("7.5 mm")),
    Sketcher.Constraint("DistanceX", 0, 3, -1, 1, Q("17 mm")),
    Sketcher.Constraint("DistanceY", 0, 3, -1, 1, Q("27 mm")),
    Sketcher.Constraint("DistanceX", 1, 3, -1, 1, Q("25 mm")),
])
pocket10 = doc.addObject("PartDesign::Pocket", "Pocket009")
body.addObject(pocket10)
pocket10.Profile = sketch18
pocket10.Length = 5
pocket10.Reversed = True

# Sketch on XZ plane
sketch19 = doc.addObject("Sketcher::SketchObject", "Sketch018")
body.addObject(sketch19)
sketch19.AttachmentSupport = (doc.XZ_Plane, [""])
sketch19.MapMode = "FlatFace"
sketch19.AttachmentOffset = App.Placement(V(0, 0, 37.5), App.Rotation())
sketch19.addGeometry(Part.Circle(V(-31, 7, 0), V(0, 0, 1), 3.1), False)
sketch19.addConstraint([
    Sketcher.Constraint("Diameter", 0, Q("6.2 mm")),
    Sketcher.Constraint("DistanceX", 0, 3, -1, 1, Q("31 mm")),
    Sketcher.Constraint("DistanceY", -1, 1, 0, 3, Q("7 mm")),
])
pocket11 = doc.addObject("PartDesign::Pocket", "Pocket010")
body.addObject(pocket11)
pocket11.Profile = sketch19
pocket11.Length = 16

# Sketch on XZ plane
sketch20 = doc.addObject("Sketcher::SketchObject", "Sketch019")
body.addObject(sketch20)
sketch20.AttachmentSupport = (doc.XZ_Plane, [""])
sketch20.MapMode = "FlatFace"
sketch20.AttachmentOffset = App.Placement(V(0, 0, 21.5), App.Rotation())
sketch20.addGeometry(Part.Circle(V(-31, 7, 0), V(0, 0, 1), 1.2), False)
sketch20.addConstraint([
    Sketcher.Constraint("Diameter", 0, Q("2.5 mm")),
    Sketcher.Constraint("DistanceX", 0, 3, -1, 1, Q("31 mm")),
    Sketcher.Constraint("DistanceY", -1, 1, 0, 3, Q("7 mm")),
])
pocket12 = doc.addObject("PartDesign::Pocket", "Pocket011")
body.addObject(pocket12)
pocket12.Profile = sketch20
pocket12.Length = 10

# Sketch on XZ plane
sketch21 = doc.addObject("Sketcher::SketchObject", "Sketch020")
body.addObject(sketch21)
sketch21.AttachmentSupport = (doc.XZ_Plane, [""])
sketch21.MapMode = "FlatFace"
sketch21.AttachmentOffset = App.Placement(V(0, 0, 37.5), App.Rotation())
sketch21.addGeometry([
    Part.LineSegment(V(-32, 4.1, 0), V(-32, -8, 0)),
    Part.LineSegment(V(-32, -8, 0), V(-30, -8, 0)),
    Part.LineSegment(V(-30, -8, 0), V(-30, 4.1, 0)),
    Part.LineSegment(V(-30, 4.1, 0), V(-32, 4.1, 0)),
], False)
sketch21.addConstraint([
    Sketcher.Constraint("Coincident", 0, 2, 1, 1),
    Sketcher.Constraint("Coincident", 1, 2, 2, 1),
    Sketcher.Constraint("Coincident", 2, 2, 3, 1),
    Sketcher.Constraint("Coincident", 3, 2, 0, 1),
    Sketcher.Constraint("Vertical", 0),
    Sketcher.Constraint("Horizontal", 1),
    Sketcher.Constraint("Vertical", 2),
    Sketcher.Constraint("Horizontal", 3),
    Sketcher.Constraint("DistanceX", 1, 1, 1, 2, Q("2 mm")),
    Sketcher.Constraint("DistanceX", 0, 2, -1, 1, Q("32 mm")),
    Sketcher.Constraint("DistanceY", 0, 2, -1, 1, Q("8 mm")),
    Sketcher.Constraint("DistanceY", 0, 2, 0, 1, Q("12.06572 mm")),
])
pocket13 = doc.addObject("PartDesign::Pocket", "Pocket012")
body.addObject(pocket13)
pocket13.Profile = sketch21
pocket13.Length = 16
doc.recompute()

fillet = doc.addObject("PartDesign::Fillet", "Fillet")
body.addObject(fillet)
fillet.Base = (pocket13, edges_at(pocket13, [(-32, -29.5, 4.066), (-30, -29.5, 4.066)]))
fillet.Radius = 2

# Sketch on YZ plane
sketch22 = doc.addObject("Sketcher::SketchObject", "Sketch021")
body.addObject(sketch22)
sketch22.AttachmentSupport = (doc.YZ_Plane, [""])
sketch22.MapMode = "FlatFace"
sketch22.AttachmentOffset = App.Placement(V(0, 0, -38), App.Rotation())
sketch22.addGeometry([
    Part.LineSegment(V(-32, -8, 0), V(-38, -8, 0)),
    Part.LineSegment(V(-38, -8, 0), V(-38, 12, 0)),
    Part.LineSegment(V(-38, 12, 0), V(-32, 12, 0)),
    Part.LineSegment(V(-32, 12, 0), V(-32, -8, 0)),
], False)
sketch22.addConstraint([
    Sketcher.Constraint("Coincident", 0, 2, 1, 1),
    Sketcher.Constraint("Coincident", 1, 2, 2, 1),
    Sketcher.Constraint("Coincident", 2, 2, 3, 1),
    Sketcher.Constraint("Coincident", 3, 2, 0, 1),
    Sketcher.Constraint("Horizontal", 0),
    Sketcher.Constraint("Vertical", 1),
    Sketcher.Constraint("Horizontal", 2),
    Sketcher.Constraint("Vertical", 3),
    Sketcher.Constraint("DistanceX", 0, 2, 0, 1, Q("5 mm")),
    Sketcher.Constraint("DistanceY", 1, 1, 1, 2, Q("20 mm")),
    Sketcher.Constraint("DistanceY", 0, 2, -1, 1, Q("8 mm")),
    Sketcher.Constraint("DistanceX", 0, 2, -1, 1, Q("37.5 mm")),
])
pocket14 = doc.addObject("PartDesign::Pocket", "Pocket013")
body.addObject(pocket14)
pocket14.Profile = sketch22
pocket14.Type = "ThroughAll"
pocket14.Reversed = True

doc.recompute()
